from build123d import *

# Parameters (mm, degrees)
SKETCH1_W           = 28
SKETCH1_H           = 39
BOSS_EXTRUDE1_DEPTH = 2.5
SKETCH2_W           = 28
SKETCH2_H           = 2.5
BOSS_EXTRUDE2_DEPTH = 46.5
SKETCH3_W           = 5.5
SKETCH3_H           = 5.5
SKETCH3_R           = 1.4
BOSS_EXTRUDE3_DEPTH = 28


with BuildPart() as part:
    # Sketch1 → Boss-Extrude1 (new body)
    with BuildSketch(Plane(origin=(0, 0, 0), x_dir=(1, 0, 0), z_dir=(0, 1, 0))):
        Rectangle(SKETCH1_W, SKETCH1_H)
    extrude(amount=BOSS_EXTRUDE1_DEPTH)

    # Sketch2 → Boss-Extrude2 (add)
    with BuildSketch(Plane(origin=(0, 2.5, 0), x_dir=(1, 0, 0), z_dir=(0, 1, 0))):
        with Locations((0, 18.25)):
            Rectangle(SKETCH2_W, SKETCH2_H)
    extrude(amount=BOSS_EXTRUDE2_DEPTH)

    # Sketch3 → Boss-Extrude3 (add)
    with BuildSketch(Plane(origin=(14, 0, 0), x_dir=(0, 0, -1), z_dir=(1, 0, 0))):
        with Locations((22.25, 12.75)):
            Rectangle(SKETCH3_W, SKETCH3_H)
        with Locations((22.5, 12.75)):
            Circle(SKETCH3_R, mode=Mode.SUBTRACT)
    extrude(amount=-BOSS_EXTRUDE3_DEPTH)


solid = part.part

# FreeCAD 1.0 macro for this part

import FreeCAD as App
import Part
import Sketcher

V = App.Vector
Q = App.Units.Quantity

doc = App.newDocument("Part")
body = doc.addObject("PartDesign::Body", "Body")

sketch1 = body.newObject("Sketcher::SketchObject", "Sketch")
sketch1.AttachmentSupport = (doc.getObject("XZ_Plane"), [""])
sketch1.MapMode = "FlatFace"
sketch1.addGeometry([
    Part.LineSegment(V(-14, -20, 0), V(-14, 20, 0)),
    Part.LineSegment(V(-14, 20, 0), V(14, 20, 0)),
    Part.LineSegment(V(14, 20, 0), V(14, -20, 0)),
    Part.LineSegment(V(14, -20, 0), V(-14, -20, 0)),
], False)
sketch1.addConstraint([
    Sketcher.Constraint("Coincident", 0, 2, 1, 1),
    Sketcher.Constraint("Coincident", 1, 2, 2, 1),
    Sketcher.Constraint("Coincident", 2, 2, 3, 1),
    Sketcher.Constraint("Coincident", 3, 2, 0, 1),
    Sketcher.Constraint("Vertical", 0),
    Sketcher.Constraint("Horizontal", 1),
    Sketcher.Constraint("Vertical", 2),
    Sketcher.Constraint("Horizontal", 3),
    Sketcher.Constraint("Symmetric", 0, 2, 2, 2, -1, 1),
    Sketcher.Constraint("DistanceX", 1, 1, 1, 2, Q("28 mm")),
    Sketcher.Constraint("DistanceY", 0, 1, 0, 2, Q("39 mm")),
])
pad1 = body.newObject("PartDesign::Pad", "Pad")
pad1.Profile = sketch1
pad1.Length = 2.5
pad1.Reversed = True

sketch2 = body.newObject("Sketcher::SketchObject", "Sketch001")
sketch2.AttachmentSupport = (doc.getObject("XZ_Plane"), [""])
sketch2.MapMode = "FlatFace"
sketch2.AttachmentOffset = App.Placement(V(0, 0, -2.5), App.Rotation())
sketch2.addGeometry([
    Part.LineSegment(V(-14, -19.5, 0), V(-14, -17, 0)),
    Part.LineSegment(V(-14, -17, 0), V(14, -17, 0)),
    Part.LineSegment(V(14, -17, 0), V(14, -19.5, 0)),
    Part.LineSegment(V(14, -19.5, 0), V(-14, -19.5, 0)),
], False)
sketch2.addConstraint([
    Sketcher.Constraint("Coincident", 0, 2, 1, 1),
    Sketcher.Constraint("Coincident", 1, 2, 2, 1),
    Sketcher.Constraint("Coincident", 2, 2, 3, 1),
    Sketcher.Constraint("Coincident", 3, 2, 0, 1),
    Sketcher.Constraint("Vertical", 0),
    Sketcher.Constraint("Horizontal", 1),
    Sketcher.Constraint("Vertical", 2),
    Sketcher.Constraint("Horizontal", 3),
    Sketcher.Constraint("DistanceX", 1, 1, 1, 2, Q("28 mm")),
    Sketcher.Constraint("DistanceY", 0, 1, 0, 2, Q("2.5 mm")),
    Sketcher.Constraint("DistanceX", 0, 2, -1, 1, Q("14 mm")),
    Sketcher.Constraint("DistanceY", 0, 2, -1, 1, Q("17 mm")),
])
pad2 = body.newObject("PartDesign::Pad", "Pad001")
pad2.Profile = sketch2
pad2.Length = 46.5
pad2.Reversed = True

sketch3 = body.newObject("Sketcher::SketchObject", "Sketch002")
sketch3.AttachmentSupport = (doc.getObject("YZ_Plane"), [""])
sketch3.MapMode = "FlatFace"
sketch3.AttachmentOffset = App.Placement(V(0, 0, 14), App.Rotation())
sketch3.addGeometry([
    Part.LineSegment(V(15.5, -19.5, 0), V(10, -19.5, 0)),
    Part.LineSegment(V(10, -19.5, 0), V(10, -25, 0)),
    Part.LineSegment(V(10, -25, 0), V(15.5, -25, 0)),
    Part.LineSegment(V(15.5, -25, 0), V(15.5, -19.5, 0)),
    Part.Circle(V(12.8, -22.5, 0), V(0, 0, 1), 1.4),
], False)
sketch3.addConstraint([
    Sketcher.Constraint("Coincident", 0, 2, 1, 1),
    Sketcher.Constraint("Coincident", 1, 2, 2, 1),
    Sketcher.Constraint("Coincident", 2, 2, 3, 1),
    Sketcher.Constraint("Coincident", 3, 2, 0, 1),
    Sketcher.Constraint("Horizontal", 0),
    Sketcher.Constraint("Vertical", 1),
    Sketcher.Constraint("Horizontal", 2),
    Sketcher.Constraint("Vertical", 3),
    Sketcher.Constraint("Equal", 2, 1),
    Sketcher.Constraint("Diameter", 4, Q("2.8 mm")),
    Sketcher.Constraint("DistanceX", 0, 2, 0, 1, Q("5.5 mm")),
    Sketcher.Constraint("DistanceX", -1, 1, 0, 2, Q("10 mm")),
    Sketcher.Constraint("DistanceY", 1, 2, -1, 1, Q("25 mm")),
    Sketcher.Constraint("DistanceY", 4, 3, 0, 2, Q("3 mm")),
    Sketcher.Constraint("DistanceX", -1, 1, 4, 3, Q("12.75 mm")),
])
pad3 = body.newObject("PartDesign::Pad", "Pad002")
pad3.Profile = sketch3
pad3.Length = 28
pad3.Reversed = True

doc.recompute()
